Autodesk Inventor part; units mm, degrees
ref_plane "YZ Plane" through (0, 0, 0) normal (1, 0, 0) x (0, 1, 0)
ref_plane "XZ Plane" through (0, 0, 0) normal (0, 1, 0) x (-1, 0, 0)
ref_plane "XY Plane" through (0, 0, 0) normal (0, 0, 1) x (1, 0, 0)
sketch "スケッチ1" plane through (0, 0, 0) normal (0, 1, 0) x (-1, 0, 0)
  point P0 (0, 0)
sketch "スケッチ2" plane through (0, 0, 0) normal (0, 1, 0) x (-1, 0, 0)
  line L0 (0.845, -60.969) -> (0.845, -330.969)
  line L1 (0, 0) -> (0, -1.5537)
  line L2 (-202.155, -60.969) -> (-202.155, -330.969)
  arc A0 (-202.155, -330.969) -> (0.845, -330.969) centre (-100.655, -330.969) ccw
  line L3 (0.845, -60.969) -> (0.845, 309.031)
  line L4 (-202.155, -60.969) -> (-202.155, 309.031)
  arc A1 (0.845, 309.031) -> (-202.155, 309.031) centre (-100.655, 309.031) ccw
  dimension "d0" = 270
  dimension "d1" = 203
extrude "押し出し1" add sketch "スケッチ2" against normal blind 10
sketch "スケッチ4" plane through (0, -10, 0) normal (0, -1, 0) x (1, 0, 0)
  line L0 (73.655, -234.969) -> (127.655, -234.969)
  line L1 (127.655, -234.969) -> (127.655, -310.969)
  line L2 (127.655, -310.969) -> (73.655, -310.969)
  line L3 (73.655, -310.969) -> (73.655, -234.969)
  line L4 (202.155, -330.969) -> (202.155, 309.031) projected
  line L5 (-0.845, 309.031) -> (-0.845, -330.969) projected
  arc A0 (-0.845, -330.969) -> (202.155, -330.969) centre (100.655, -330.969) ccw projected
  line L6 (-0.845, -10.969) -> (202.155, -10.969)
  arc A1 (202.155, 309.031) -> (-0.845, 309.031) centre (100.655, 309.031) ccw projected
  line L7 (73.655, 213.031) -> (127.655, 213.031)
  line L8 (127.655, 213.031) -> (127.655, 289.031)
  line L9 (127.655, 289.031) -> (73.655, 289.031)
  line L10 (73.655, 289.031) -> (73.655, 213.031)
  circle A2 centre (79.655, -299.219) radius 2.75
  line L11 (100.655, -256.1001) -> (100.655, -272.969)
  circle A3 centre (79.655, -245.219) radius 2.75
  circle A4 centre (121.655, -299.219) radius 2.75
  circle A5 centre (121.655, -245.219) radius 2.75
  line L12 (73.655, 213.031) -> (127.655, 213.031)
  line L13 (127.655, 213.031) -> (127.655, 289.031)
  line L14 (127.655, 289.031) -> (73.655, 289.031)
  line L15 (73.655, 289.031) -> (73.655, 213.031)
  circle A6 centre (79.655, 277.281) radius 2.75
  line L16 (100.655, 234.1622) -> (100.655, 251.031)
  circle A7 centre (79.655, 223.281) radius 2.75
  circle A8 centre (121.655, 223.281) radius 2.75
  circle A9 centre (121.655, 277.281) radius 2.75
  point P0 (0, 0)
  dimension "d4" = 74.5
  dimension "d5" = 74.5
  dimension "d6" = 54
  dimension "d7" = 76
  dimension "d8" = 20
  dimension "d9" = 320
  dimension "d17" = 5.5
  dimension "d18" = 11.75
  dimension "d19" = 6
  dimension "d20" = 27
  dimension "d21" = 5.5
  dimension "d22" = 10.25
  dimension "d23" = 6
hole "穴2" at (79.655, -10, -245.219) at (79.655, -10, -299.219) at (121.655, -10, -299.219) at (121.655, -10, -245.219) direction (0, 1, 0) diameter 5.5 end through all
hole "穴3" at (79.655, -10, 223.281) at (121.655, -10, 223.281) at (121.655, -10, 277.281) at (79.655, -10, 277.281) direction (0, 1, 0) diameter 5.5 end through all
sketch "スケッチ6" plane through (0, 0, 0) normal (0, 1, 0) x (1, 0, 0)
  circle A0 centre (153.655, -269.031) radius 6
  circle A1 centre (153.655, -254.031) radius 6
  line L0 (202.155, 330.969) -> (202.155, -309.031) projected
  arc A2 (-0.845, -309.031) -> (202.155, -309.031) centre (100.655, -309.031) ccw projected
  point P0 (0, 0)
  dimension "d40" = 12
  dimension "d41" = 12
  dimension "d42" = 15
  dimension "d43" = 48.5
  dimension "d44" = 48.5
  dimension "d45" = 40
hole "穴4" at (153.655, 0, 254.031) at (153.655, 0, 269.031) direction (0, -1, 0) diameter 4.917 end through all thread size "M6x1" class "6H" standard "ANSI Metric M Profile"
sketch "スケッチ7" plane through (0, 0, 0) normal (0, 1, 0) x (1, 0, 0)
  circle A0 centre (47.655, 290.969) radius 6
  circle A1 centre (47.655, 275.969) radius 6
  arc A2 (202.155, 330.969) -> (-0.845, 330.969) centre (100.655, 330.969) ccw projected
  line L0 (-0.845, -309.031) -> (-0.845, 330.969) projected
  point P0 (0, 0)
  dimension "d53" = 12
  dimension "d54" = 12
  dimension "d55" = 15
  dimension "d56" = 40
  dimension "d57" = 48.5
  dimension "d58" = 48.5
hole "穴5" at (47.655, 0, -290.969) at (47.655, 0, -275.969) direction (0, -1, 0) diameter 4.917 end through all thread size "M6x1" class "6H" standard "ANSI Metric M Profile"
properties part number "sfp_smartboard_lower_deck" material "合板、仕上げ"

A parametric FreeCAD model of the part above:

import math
import FreeCAD as App
import Part
import Sketcher

V = App.Vector
Q = App.Units.Quantity

doc = App.newDocument("Part")
body = doc.addObject("PartDesign::Body", "Body")

# Sketch on XZ plane
sketch1 = body.newObject("Sketcher::SketchObject", "Sketch")
sketch1.AttachmentSupport = (doc.getObject("XZ_Plane"), [""])
sketch1.MapMode = "FlatFace"
sketch1.addGeometry([
    Part.LineSegment(V(-1, -331, 0), V(-1, 309, 0)),
    Part.ArcOfCircle(Part.Circle(V(101, 309, 0), V(0, 0, 1), 102), math.radians(0), math.radians(180)),
    Part.LineSegment(V(202, 309, 0), V(202, -331, 0)),
    Part.ArcOfCircle(Part.Circle(V(101, -331, 0), V(0, 0, 1), 102), math.radians(180), math.radians(360)),
], False)
sketch1.addConstraint([
    Sketcher.Constraint("Tangent", 0, 2, 1, 2),
    Sketcher.Constraint("Tangent", 1, 1, 2, 1),
    Sketcher.Constraint("Tangent", 2, 2, 3, 2),
    Sketcher.Constraint("Tangent", 3, 1, 0, 1),
    Sketcher.Constraint("Vertical", 0),
    Sketcher.Constraint("Vertical", 2),
    Sketcher.Constraint("Radius", 1, Q("101.5 mm")),
    Sketcher.Constraint("DistanceY", 0, 1, 0, 2, Q("640 mm")),
    Sketcher.Constraint("DistanceX", -1, 1, 1, 3, Q("100.655 mm")),
    Sketcher.Constraint("DistanceY", -1, 1, 1, 3, Q("309.031 mm")),
])
pad1 = body.newObject("PartDesign::Pad", "Pad")
pad1.Profile = sketch1
pad1.Length = 10

# Sketch on XZ plane
sketch2 = body.newObject("Sketcher::SketchObject", "Sketch001")
sketch2.AttachmentSupport = (doc.getObject("XZ_Plane"), [""])
sketch2.MapMode = "FlatFace"
sketch2.AttachmentOffset = App.Placement(V(0, 0, 10), App.Rotation())
sketch2.addGeometry([
    Part.Circle(V(79.7, -245.2, 0), V(0, 0, 1), 2.8),
    Part.Circle(V(79.7, -299.2, 0), V(0, 0, 1), 2.8),
    Part.Circle(V(121.7, -299.2, 0), V(0, 0, 1), 2.8),
    Part.Circle(V(121.7, -245.2, 0), V(0, 0, 1), 2.8),
], False)
sketch2.addConstraint([
    Sketcher.Constraint("Equal", 0, 1),
    Sketcher.Constraint("Equal", 1, 2),
    Sketcher.Constraint("Equal", 2, 3),
    Sketcher.Constraint("Horizontal", 1, 3, 2, 3),
    Sketcher.Constraint("Horizontal", 0, 3, 3, 3),
    Sketcher.Constraint("Vertical", 0, 3, 1, 3),
    Sketcher.Constraint("Vertical", 2, 3, 3, 3),
    Sketcher.Constraint("Diameter", 0, Q("5.5 mm")),
    Sketcher.Constraint("DistanceY", 1, 3, 0, 3, Q("54 mm")),
    Sketcher.Constraint("DistanceX", 1, 3, 2, 3, Q("42 mm")),
    Sketcher.Constraint("DistanceX", -1, 1, 0, 3, Q("79.655 mm")),
    Sketcher.Constraint("DistanceY", 0, 3, -1, 1, Q("245.219 mm")),
])
doc.recompute()
hole = body.newObject("PartDesign::Hole", "Hole")
hole.Profile = sketch2
hole.ThreadType = "None"
hole.Diameter = 5.5
hole.DepthType = "ThroughAll"

# Sketch on XZ plane
sketch3 = body.newObject("Sketcher::SketchObject", "Sketch002")
sketch3.AttachmentSupport = (doc.getObject("XZ_Plane"), [""])
sketch3.MapMode = "FlatFace"
sketch3.AttachmentOffset = App.Placement(V(0, 0, 10), App.Rotation())
sketch3.addGeometry([
    Part.Circle(V(79.7, 223.3, 0), V(0, 0, 1), 2.8),
    Part.Circle(V(121.7, 223.3, 0), V(0, 0, 1), 2.8),
    Part.Circle(V(121.7, 277.3, 0), V(0, 0, 1), 2.8),
    Part.Circle(V(79.7, 277.3, 0), V(0, 0, 1), 2.8),
], False)
sketch3.addConstraint([
    Sketcher.Constraint("Equal", 0, 1),
    Sketcher.Constraint("Equal", 1, 2),
    Sketcher.Constraint("Equal", 2, 3),
    Sketcher.Constraint("Horizontal", 0, 3, 1, 3),
    Sketcher.Constraint("Horizontal", 2, 3, 3, 3),
    Sketcher.Constraint("Vertical", 1, 3, 2, 3),
    Sketcher.Constraint("Vertical", 0, 3, 3, 3),
    Sketcher.Constraint("Diameter", 0, Q("5.5 mm")),
    Sketcher.Constraint("DistanceX", 0, 3, 1, 3, Q("42 mm")),
    Sketcher.Constraint("DistanceY", 1, 3, 2, 3, Q("54 mm")),
    Sketcher.Constraint("DistanceX", -1, 1, 0, 3, Q("79.655 mm")),
    Sketcher.Constraint("DistanceY", -1, 1, 0, 3, Q("223.281 mm")),
])
doc.recompute()
hole2 = body.newObject("PartDesign::Hole", "Hole001")
hole2.Profile = sketch3
hole2.ThreadType = "None"
hole2.Diameter = 5.5
hole2.DepthType = "ThroughAll"

# Sketch on XZ plane
sketch4 = body.newObject("Sketcher::SketchObject", "Sketch003")
sketch4.AttachmentSupport = (doc.getObject("XZ_Plane"), [""])
sketch4.MapMode = "FlatFace"
sketch4.addGeometry([
    Part.Circle(V(153.7, 254, 0), V(0, 0, 1), 2.5),
    Part.Circle(V(153.7, 269, 0), V(0, 0, 1), 2.5),
], False)
sketch4.addConstraint([
    Sketcher.Constraint("Equal", 0, 1),
    Sketcher.Constraint("Vertical", 0, 3, 1, 3),
    Sketcher.Constraint("Diameter", 0, Q("4.917 mm")),
    Sketcher.Constraint("DistanceY", 0, 3, 1, 3, Q("15 mm")),
    Sketcher.Constraint("DistanceX", -1, 1, 0, 3, Q("153.655 mm")),
    Sketcher.Constraint("DistanceY", -1, 1, 0, 3, Q("254.031 mm")),
])
doc.recompute()
hole3 = body.newObject("PartDesign::Hole", "Hole002")
hole3.Profile = sketch4
hole3.ThreadType = "None"
hole3.Diameter = 4.917
hole3.DepthType = "ThroughAll"
hole3.Reversed = True

# Sketch on XZ plane
sketch5 = body.newObject("Sketcher::SketchObject", "Sketch004")
sketch5.AttachmentSupport = (doc.getObject("XZ_Plane"), [""])
sketch5.MapMode = "FlatFace"
sketch5.addGeometry([
    Part.Circle(V(47.7, -291, 0), V(0, 0, 1), 2.5),
    Part.Circle(V(47.7, -276, 0), V(0, 0, 1), 2.5),
], False)
sketch5.addConstraint([
    Sketcher.Constraint("Equal", 0, 1),
    Sketcher.Constraint("Vertical", 0, 3, 1, 3),
    Sketcher.Constraint("Diameter", 0, Q("4.917 mm")),
    Sketcher.Constraint("DistanceY", 0, 3, 1, 3, Q("15 mm")),
    Sketcher.Constraint("DistanceX", -1, 1, 0, 3, Q("47.655 mm")),
    Sketcher.Constraint("DistanceY", 0, 3, -1, 1, Q("290.969 mm")),
])
doc.recompute()
hole4 = body.newObject("PartDesign::Hole", "Hole003")
hole4.Profile = sketch5
hole4.ThreadType = "None"
hole4.Diameter = 4.917
hole4.DepthType = "ThroughAll"
hole4.Reversed = True

doc.recompute()
